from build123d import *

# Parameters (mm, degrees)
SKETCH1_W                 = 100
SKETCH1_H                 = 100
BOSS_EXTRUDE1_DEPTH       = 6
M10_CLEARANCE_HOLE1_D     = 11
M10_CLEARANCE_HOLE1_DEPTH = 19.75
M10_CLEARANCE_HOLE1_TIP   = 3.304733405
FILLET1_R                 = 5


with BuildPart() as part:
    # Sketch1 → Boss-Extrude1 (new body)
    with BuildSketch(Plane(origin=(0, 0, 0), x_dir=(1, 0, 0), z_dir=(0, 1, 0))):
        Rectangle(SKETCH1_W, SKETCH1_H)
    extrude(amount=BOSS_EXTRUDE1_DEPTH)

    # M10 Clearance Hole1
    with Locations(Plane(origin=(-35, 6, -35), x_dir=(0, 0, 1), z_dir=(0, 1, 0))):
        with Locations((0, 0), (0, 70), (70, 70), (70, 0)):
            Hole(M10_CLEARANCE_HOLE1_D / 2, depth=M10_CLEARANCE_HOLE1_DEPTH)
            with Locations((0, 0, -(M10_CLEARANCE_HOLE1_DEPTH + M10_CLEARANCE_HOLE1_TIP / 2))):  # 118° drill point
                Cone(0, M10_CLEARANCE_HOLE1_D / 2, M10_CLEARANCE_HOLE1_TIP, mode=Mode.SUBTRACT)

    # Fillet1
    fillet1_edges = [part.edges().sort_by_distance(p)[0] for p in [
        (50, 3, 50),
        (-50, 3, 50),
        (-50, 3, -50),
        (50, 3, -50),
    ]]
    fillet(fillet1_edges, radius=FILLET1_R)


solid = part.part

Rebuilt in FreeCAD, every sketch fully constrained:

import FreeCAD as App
import Part
import Sketcher

V = App.Vector


def edges_at(feature, points):
    """Names of the edges that pass closest to the given points."""
    edges = feature.Shape.Edges
    near = lambda p: min(range(len(edges)), key=lambda i: edges[i].distToShape(Part.Vertex(*p))[0])
    return sorted({f"Edge{near(p) + 1}" for p in points})


def add_polygon(sketch, points):
    """Adds a closed chain of lines whose ends are joined by coincident constraints."""
    first, n = sketch.GeometryCount, len(points)
    for a, b in zip(points, points[1:] + points[:1]):
        sketch.addGeometry(Part.LineSegment(App.Vector(*a, 0), App.Vector(*b, 0)), False)
    for i in range(n):
        sketch.addConstraint(Sketcher.Constraint("Coincident", first + i, 2, first + (i + 1) % n, 1))

doc = App.newDocument("Part")
body = doc.addObject("PartDesign::Body", "Body")

# Sketch on XZ plane
sketch1 = body.newObject("Sketcher::SketchObject", "Sketch")
sketch1.AttachmentSupport = (doc.getObject("XZ_Plane"), [""])
sketch1.MapMode = "FlatFace"
add_polygon(sketch1, [(-50, -50), (-50, 50), (50, 50), (50, -50)])  # lines 0-3
sketch1.addConstraint(Sketcher.Constraint("Vertical", 0))
sketch1.addConstraint(Sketcher.Constraint("Horizontal", 1))
sketch1.addConstraint(Sketcher.Constraint("Vertical", 2))
sketch1.addConstraint(Sketcher.Constraint("Horizontal", 3))
sketch1.addConstraint(Sketcher.Constraint("Symmetric", 0, 2, 2, 2, -1, 1))
sketch1.addConstraint(Sketcher.Constraint("Equal", 3, 0))
sketch1.addConstraint(Sketcher.Constraint("DistanceX", 1, 1, 1, 2, 100.0))
pad1 = body.newObject("PartDesign::Pad", "Pad")
pad1.Profile = sketch1
pad1.Length = 6
pad1.Reversed = True

# Sketch on XZ plane
sketch2 = body.newObject("Sketcher::SketchObject", "Sketch001")
sketch2.AttachmentSupport = (doc.getObject("XZ_Plane"), [""])
sketch2.MapMode = "FlatFace"
sketch2.AttachmentOffset = App.Placement(V(0, 0, -6), App.Rotation())
sketch2.addGeometry(Part.Circle(V(-35, -35, 0), V(0, 0, 1), 6), False)
sketch2.addGeometry(Part.Circle(V(35, -35, 0), V(0, 0, 1), 6), False)
sketch2.addGeometry(Part.Circle(V(35, 35, 0), V(0, 0, 1), 6), False)
sketch2.addGeometry(Part.Circle(V(-35, 35, 0), V(0, 0, 1), 6), False)
sketch2.addConstraint(Sketcher.Constraint("Equal", 0, 1))
sketch2.addConstraint(Sketcher.Constraint("Equal", 1, 2))
sketch2.addConstraint(Sketcher.Constraint("Equal", 2, 3))
sketch2.addConstraint(Sketcher.Constraint("Symmetric", 0, 3, 2, 3, -1, 1))
sketch2.addConstraint(Sketcher.Constraint("Symmetric", 1, 3, 3, 3, -1, 1))
sketch2.addConstraint(Sketcher.Constraint("Symmetric", 0, 3, 1, 3, -2))
sketch2.addConstraint(Sketcher.Constraint("Diameter", 0, 11.0))
sketch2.addConstraint(Sketcher.Constraint("DistanceX", 0, 3, -1, 1, 35.0))
sketch2.addConstraint(Sketcher.Constraint("DistanceY", 0, 3, -1, 1, 35.0))
doc.recompute()
hole = body.newObject("PartDesign::Hole", "Hole")
hole.Profile = sketch2
hole.ThreadType = "None"
hole.Diameter = 11
hole.DepthType = "Dimension"
hole.Depth = 19.75
hole.DrillPoint = "Angled"
hole.DrillPointAngle = 118
hole.Reversed = True
doc.recompute()

fillet = body.newObject("PartDesign::Fillet", "Fillet")
fillet.Base = (hole, edges_at(hole, [
    (50, 3, 50),
    (-50, 3, 50),
    (-50, 3, -50),
    (50, 3, -50),
]))
fillet.Radius = 5

doc.recompute()
